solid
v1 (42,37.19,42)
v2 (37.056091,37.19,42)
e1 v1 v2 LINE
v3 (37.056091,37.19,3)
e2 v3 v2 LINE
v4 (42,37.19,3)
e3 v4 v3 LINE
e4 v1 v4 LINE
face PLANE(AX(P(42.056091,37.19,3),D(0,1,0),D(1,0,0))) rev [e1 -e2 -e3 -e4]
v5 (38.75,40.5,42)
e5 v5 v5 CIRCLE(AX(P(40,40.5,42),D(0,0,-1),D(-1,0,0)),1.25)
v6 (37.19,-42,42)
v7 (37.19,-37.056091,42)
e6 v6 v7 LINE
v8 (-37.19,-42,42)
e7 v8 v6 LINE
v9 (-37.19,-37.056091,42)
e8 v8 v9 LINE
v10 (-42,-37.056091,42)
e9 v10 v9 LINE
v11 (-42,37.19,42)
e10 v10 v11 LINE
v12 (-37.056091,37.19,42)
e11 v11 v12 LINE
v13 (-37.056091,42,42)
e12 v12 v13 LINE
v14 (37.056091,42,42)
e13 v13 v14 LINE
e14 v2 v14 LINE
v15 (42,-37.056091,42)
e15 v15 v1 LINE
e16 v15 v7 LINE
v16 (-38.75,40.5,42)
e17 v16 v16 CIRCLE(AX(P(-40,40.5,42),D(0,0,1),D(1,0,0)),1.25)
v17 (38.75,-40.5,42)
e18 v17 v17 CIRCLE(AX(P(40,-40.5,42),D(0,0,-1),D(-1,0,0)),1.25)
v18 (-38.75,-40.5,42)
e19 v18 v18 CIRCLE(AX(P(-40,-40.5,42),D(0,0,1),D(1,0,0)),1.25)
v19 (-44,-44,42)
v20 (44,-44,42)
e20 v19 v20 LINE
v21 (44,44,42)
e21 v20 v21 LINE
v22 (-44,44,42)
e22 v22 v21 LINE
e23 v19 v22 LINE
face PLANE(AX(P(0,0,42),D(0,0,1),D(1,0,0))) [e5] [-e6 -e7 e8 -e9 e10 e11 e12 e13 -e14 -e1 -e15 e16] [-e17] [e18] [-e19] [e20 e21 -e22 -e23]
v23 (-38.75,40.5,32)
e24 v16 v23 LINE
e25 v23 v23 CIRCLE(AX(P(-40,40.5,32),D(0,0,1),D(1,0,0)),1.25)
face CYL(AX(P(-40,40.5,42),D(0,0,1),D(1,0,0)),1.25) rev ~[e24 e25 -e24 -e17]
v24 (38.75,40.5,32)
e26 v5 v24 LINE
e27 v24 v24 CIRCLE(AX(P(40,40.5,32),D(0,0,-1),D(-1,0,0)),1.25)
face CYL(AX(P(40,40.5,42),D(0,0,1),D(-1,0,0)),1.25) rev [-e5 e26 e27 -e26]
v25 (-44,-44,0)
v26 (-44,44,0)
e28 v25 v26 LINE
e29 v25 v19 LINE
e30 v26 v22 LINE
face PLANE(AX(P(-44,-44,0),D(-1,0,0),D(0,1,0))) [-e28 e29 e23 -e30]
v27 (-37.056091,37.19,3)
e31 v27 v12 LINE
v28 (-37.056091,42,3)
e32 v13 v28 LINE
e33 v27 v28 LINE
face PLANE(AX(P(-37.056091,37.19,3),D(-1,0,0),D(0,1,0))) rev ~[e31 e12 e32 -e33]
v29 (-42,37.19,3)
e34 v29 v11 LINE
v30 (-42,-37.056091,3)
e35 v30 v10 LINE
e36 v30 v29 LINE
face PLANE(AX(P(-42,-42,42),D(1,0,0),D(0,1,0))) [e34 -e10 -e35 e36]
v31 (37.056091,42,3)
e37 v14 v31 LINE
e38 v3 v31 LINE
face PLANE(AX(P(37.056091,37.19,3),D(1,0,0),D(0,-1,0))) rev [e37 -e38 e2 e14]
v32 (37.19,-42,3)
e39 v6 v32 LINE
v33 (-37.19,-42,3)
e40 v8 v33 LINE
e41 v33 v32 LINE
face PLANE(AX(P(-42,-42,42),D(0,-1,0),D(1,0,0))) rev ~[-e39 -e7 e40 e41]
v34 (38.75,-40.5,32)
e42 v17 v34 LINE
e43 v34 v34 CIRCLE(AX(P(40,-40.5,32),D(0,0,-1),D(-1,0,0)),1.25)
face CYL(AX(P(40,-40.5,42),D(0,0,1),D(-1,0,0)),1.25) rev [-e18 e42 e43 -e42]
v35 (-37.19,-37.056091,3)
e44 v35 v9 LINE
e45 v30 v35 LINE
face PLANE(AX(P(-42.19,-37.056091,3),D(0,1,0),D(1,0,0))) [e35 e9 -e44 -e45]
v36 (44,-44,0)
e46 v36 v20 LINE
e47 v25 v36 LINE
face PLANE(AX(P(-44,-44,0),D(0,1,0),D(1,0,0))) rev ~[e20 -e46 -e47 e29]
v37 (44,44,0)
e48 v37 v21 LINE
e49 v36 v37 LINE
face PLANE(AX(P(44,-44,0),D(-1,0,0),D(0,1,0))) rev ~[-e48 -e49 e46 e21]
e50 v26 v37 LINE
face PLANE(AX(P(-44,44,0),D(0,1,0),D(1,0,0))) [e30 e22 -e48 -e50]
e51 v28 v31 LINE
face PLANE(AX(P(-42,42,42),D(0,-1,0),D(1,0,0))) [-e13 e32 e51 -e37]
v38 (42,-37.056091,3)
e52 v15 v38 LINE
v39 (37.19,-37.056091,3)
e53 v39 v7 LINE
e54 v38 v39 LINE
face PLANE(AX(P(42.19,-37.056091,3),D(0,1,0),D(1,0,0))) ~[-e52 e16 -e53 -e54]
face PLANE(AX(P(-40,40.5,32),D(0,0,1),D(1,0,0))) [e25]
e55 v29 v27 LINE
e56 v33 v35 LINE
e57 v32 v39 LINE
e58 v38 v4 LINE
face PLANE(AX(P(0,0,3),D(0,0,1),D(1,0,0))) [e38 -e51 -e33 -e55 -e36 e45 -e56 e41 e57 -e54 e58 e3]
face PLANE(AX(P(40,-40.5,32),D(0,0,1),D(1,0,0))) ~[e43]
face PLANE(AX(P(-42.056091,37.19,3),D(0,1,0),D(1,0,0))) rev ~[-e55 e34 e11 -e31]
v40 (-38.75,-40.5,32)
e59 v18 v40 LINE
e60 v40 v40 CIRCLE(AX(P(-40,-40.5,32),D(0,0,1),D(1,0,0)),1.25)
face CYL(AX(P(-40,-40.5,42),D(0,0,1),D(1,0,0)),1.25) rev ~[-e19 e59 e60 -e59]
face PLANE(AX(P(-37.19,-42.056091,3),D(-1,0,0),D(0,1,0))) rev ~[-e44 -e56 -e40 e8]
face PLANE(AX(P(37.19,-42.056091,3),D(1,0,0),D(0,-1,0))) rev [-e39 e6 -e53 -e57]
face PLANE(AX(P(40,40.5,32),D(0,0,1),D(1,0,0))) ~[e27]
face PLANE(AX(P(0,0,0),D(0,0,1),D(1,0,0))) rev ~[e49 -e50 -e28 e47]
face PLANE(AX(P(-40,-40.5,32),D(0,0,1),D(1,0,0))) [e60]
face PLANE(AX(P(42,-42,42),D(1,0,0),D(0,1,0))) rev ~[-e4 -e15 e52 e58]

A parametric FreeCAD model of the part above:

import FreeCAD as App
import Part
import Sketcher
from FreeCAD import Vector


def add_polygon(sketch, points):
    """Adds a closed chain of lines whose ends are joined by coincident constraints."""
    first, n = sketch.GeometryCount, len(points)
    for a, b in zip(points, points[1:] + points[:1]):
        sketch.addGeometry(Part.LineSegment(App.Vector(*a, 0), App.Vector(*b, 0)), False)
    for i in range(n):
        sketch.addConstraint(Sketcher.Constraint("Coincident", first + i, 2, first + (i + 1) % n, 1))

doc = App.newDocument("Part")
body = doc.addObject("PartDesign::Body", "Body")

# Sketch on XY plane
sketch1 = body.newObject("Sketcher::SketchObject", "Sketch")
sketch1.AttachmentSupport = (doc.getObject("XY_Plane"), [""])
sketch1.MapMode = "FlatFace"
add_polygon(sketch1, [(-44, 44), (-44, -44), (44, -44), (44, 44)])  # lines 0-3
sketch1.addConstraint([
    Sketcher.Constraint("Vertical", 0),
    Sketcher.Constraint("Horizontal", 1),
    Sketcher.Constraint("Vertical", 2),
    Sketcher.Constraint("Horizontal", 3),
    Sketcher.Constraint("Symmetric", 0, 2, 2, 2, -1, 1),
    Sketcher.Constraint("Equal", 3, 0),
    Sketcher.Constraint("DistanceX", 1, 1, 1, 2, 88.0),
])
pad1 = body.newObject("PartDesign::Pad", "Pad")
pad1.Profile = sketch1
pad1.Length = 42

# Sketch on XY plane
sketch2 = body.newObject("Sketcher::SketchObject", "Sketch001")
sketch2.AttachmentSupport = (doc.getObject("XY_Plane"), [""])
sketch2.MapMode = "FlatFace"
sketch2.AttachmentOffset = App.Placement(Vector(0, 0, 42), App.Rotation())
add_polygon(sketch2, [(-42, 42), (-42, -42), (42, -42), (42, 42)])  # lines 0-3
sketch2.addConstraint([
    Sketcher.Constraint("Vertical", 0),
    Sketcher.Constraint("Horizontal", 1),
    Sketcher.Constraint("Vertical", 2),
    Sketcher.Constraint("Horizontal", 3),
    Sketcher.Constraint("Symmetric", 0, 2, 2, 2, -1, 1),
    Sketcher.Constraint("Equal", 3, 0),
    Sketcher.Constraint("DistanceX", 1, 1, 1, 2, 84.0),
])
pocket1 = body.newObject("PartDesign::Pocket", "Pocket")
pocket1.Profile = sketch2
pocket1.Length = 39

# Sketch on XY plane
sketch3 = body.newObject("Sketcher::SketchObject", "Sketch002")
sketch3.AttachmentSupport = (doc.getObject("XY_Plane"), [""])
sketch3.MapMode = "FlatFace"
sketch3.AttachmentOffset = App.Placement(Vector(0, 0, 3), App.Rotation())
add_polygon(sketch3, [(-42.056091, 42.19), (-42.056091, 37.19), (-37.056091, 37.19), (-37.056091, 42.19)])  # lines 0-3
add_polygon(sketch3, [(-42.19, -37.056091), (-42.19, -42.056091), (-37.19, -42.056091), (-37.19, -37.056091)])  # lines 4-7
sketch3.addConstraint([
    Sketcher.Constraint("Vertical", 0),
    Sketcher.Constraint("Horizontal", 1),
    Sketcher.Constraint("Vertical", 2),
    Sketcher.Constraint("Horizontal", 3),
    Sketcher.Constraint("Vertical", 4),
    Sketcher.Constraint("Horizontal", 5),
    Sketcher.Constraint("Vertical", 6),
    Sketcher.Constraint("Horizontal", 7),
    Sketcher.Constraint("Equal", 3, 5),
    Sketcher.Constraint("Equal", 7, 0),
    Sketcher.Constraint("Equal", 2, 4),
    Sketcher.Constraint("DistanceX", 1, 1, 1, 2, 5.0),
    Sketcher.Constraint("DistanceY", -1, 1, 0, 2, 37.19),
    Sketcher.Constraint("DistanceX", 4, 2, -1, 1, 42.19),
    Sketcher.Constraint("DistanceX", 0, 2, -1, 1, 42.056091),
    Sketcher.Constraint("DistanceY", 4, 2, -1, 1, 42.056091),
])
pad2 = body.newObject("PartDesign::Pad", "Pad001")
pad2.Profile = sketch3
pad2.Length = 39
doc.recompute()

mirrored = body.newObject("PartDesign::Mirrored", "Mirrored")
mirrored.Originals = [pad2]
mirrored.MirrorPlane = (doc.getObject("YZ_Plane"), [""])
body.Tip = mirrored

# Sketch on XY plane
sketch4 = body.newObject("Sketcher::SketchObject", "Sketch003")
sketch4.AttachmentSupport = (doc.getObject("XY_Plane"), [""])
sketch4.MapMode = "FlatFace"
sketch4.AttachmentOffset = App.Placement(Vector(0, 0, 42), App.Rotation())
sketch4.addGeometry([
    Part.Circle(Vector(-40, 40.5, 0), Vector(0, 0, 1), 1.25),
    Part.Circle(Vector(-40, -40.5, 0), Vector(0, 0, 1), 1.25),
], False)
sketch4.addConstraint([
    Sketcher.Constraint("Equal", 0, 1),
    Sketcher.Constraint("Symmetric", 0, 3, 1, 3, -1),
    Sketcher.Constraint("Diameter", 0, 2.5),
    Sketcher.Constraint("DistanceX", 0, 3, -1, 1, 40.0),
    Sketcher.Constraint("DistanceY", 1, 3, 0, 3, 81.0),
])
pocket2 = body.newObject("PartDesign::Pocket", "Pocket001")
pocket2.Profile = sketch4
pocket2.Length = 10
doc.recompute()

mirrored2 = body.newObject("PartDesign::Mirrored", "Mirrored001")
mirrored2.Originals = [pocket2]
mirrored2.MirrorPlane = (doc.getObject("YZ_Plane"), [""])
body.Tip = mirrored2

doc.recompute()
